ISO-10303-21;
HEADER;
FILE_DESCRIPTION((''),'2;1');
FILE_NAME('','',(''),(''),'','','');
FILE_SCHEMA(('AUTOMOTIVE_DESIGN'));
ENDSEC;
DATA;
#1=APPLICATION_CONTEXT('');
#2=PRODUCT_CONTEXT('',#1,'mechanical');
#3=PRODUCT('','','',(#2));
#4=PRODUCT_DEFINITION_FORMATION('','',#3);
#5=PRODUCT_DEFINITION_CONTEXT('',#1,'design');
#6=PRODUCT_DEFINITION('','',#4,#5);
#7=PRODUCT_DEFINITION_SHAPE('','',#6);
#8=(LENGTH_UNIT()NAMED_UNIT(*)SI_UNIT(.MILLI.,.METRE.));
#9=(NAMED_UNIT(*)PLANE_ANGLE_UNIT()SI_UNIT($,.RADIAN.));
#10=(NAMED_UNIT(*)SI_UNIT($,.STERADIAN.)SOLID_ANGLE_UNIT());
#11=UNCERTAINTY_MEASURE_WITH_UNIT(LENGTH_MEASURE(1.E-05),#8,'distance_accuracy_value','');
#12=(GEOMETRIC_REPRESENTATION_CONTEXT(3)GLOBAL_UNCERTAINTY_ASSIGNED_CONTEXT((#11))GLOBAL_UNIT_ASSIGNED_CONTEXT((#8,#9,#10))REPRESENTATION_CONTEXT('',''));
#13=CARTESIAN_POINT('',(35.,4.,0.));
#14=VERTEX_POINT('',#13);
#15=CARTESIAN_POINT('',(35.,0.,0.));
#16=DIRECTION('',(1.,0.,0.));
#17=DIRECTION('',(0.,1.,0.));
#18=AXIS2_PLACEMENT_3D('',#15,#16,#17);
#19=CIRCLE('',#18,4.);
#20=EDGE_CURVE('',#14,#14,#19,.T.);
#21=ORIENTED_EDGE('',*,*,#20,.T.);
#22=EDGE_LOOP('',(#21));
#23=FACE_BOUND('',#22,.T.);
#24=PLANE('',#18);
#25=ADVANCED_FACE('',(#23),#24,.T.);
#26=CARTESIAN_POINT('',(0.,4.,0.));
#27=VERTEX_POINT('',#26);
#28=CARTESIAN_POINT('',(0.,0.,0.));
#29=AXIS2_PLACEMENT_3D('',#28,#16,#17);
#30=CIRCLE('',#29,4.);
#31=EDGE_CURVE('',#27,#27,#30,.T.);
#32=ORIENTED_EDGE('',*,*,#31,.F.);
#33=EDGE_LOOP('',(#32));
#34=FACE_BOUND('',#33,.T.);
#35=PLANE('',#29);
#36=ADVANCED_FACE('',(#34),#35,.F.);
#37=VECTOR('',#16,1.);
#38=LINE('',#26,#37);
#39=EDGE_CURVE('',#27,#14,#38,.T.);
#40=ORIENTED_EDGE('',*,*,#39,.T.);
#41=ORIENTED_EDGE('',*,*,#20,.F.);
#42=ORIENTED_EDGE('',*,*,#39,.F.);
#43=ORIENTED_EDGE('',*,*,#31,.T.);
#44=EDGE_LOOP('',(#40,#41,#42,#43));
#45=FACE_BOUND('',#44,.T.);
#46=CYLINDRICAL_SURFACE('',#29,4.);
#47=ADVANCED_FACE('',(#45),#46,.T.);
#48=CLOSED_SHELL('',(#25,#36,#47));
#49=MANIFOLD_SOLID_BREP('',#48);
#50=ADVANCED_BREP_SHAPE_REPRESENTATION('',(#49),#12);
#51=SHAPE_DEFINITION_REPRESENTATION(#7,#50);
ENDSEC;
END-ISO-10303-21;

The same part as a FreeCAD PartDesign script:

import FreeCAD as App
import Part
import Sketcher

V = App.Vector


def add_polygon(sketch, points):
    """Adds a closed chain of lines whose ends are joined by coincident constraints."""
    first, n = sketch.GeometryCount, len(points)
    for a, b in zip(points, points[1:] + points[:1]):
        sketch.addGeometry(Part.LineSegment(App.Vector(*a, 0), App.Vector(*b, 0)), False)
    for i in range(n):
        sketch.addConstraint(Sketcher.Constraint("Coincident", first + i, 2, first + (i + 1) % n, 1))

doc = App.newDocument("Part")
body = doc.addObject("PartDesign::Body", "Body")

sketch1 = doc.addObject("Sketcher::SketchObject", "Sketch")
body.addObject(sketch1)
sketch1.AttachmentSupport = (doc.XY_Plane, [""])
sketch1.MapMode = "FlatFace"
add_polygon(sketch1, [(0, 4), (0, 0), (35, 0), (35, 4)])
sketch1.addConstraint(Sketcher.Constraint("Vertical", 0))
sketch1.addConstraint(Sketcher.Constraint("Horizontal", 1))
sketch1.addConstraint(Sketcher.Constraint("Vertical", 2))
sketch1.addConstraint(Sketcher.Constraint("Horizontal", 3))
sketch1.addConstraint(Sketcher.Constraint("Coincident", 0, 2, -1, 1))
sketch1.addConstraint(Sketcher.Constraint("DistanceX", 1, 1, 1, 2, 35.0))
sketch1.addConstraint(Sketcher.Constraint("DistanceY", 0, 2, 0, 1, 4.0))
revolution = doc.addObject("PartDesign::Revolution", "Revolution")
body.addObject(revolution)
revolution.Profile = sketch1
revolution.ReferenceAxis = (sketch1, ["H_Axis"])
revolution.Angle = 360

doc.recompute()
